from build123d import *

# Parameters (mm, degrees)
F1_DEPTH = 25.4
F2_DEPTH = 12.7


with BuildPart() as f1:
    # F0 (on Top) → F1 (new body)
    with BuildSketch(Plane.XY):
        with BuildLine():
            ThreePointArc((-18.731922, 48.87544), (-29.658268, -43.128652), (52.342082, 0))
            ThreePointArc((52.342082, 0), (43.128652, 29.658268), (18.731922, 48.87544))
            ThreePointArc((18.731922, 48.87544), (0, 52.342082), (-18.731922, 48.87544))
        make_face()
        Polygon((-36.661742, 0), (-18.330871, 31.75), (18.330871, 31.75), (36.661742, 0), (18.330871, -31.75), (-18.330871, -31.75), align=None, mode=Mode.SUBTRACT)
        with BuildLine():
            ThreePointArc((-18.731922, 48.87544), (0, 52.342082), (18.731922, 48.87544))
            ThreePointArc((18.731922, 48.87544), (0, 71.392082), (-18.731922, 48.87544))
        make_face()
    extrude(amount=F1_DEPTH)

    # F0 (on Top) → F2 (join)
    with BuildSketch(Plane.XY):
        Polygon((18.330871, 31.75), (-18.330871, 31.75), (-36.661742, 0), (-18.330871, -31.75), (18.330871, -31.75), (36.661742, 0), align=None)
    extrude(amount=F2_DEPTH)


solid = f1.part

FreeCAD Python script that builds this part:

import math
import FreeCAD as App
import Part
import Sketcher
Q = App.Units.Quantity


def add_polygon(sketch, points):
    """Adds a closed chain of lines whose ends are joined by coincident constraints."""
    first, n = sketch.GeometryCount, len(points)
    for a, b in zip(points, points[1:] + points[:1]):
        sketch.addGeometry(Part.LineSegment(App.Vector(*a, 0), App.Vector(*b, 0)), False)
    for i in range(n):
        sketch.addConstraint(Sketcher.Constraint("Coincident", first + i, 2, first + (i + 1) % n, 1))

doc = App.newDocument("Part")
params = doc.addObject("Spreadsheet::Sheet", "Params")
for row, (alias, value) in enumerate([
    ("sketch1_radius", "0.75 in"),
    ("pad1_length", "1 in"),
    ("pad2_length", "0.5 in"),
], start=1):
    params.set(f"A{row}", alias)
    params.set(f"B{row}", "=" + value)
    params.setAlias(f"B{row}", alias)

body = doc.addObject("PartDesign::Body", "Body")

sketch1 = body.newObject("Sketcher::SketchObject", "Sketch")
sketch1.AttachmentSupport = (doc.getObject("XY_Plane"), [""])
sketch1.MapMode = "FlatFace"
sketch1.addGeometry(Part.ArcOfCircle(Part.Circle(App.Vector(0, 0, 0), App.Vector(0, 0, 1), 52.342082), math.radians(110.969749), math.radians(360)), False)
sketch1.addGeometry(Part.ArcOfCircle(Part.Circle(App.Vector(-0.000003, -0.000002, 0), App.Vector(0, 0, 1), 52.342085), math.radians(0.000002), math.radians(69.030249)), False)
sketch1.addGeometry(Part.ArcOfCircle(Part.Circle(App.Vector(0, 52.342082, 0), App.Vector(0, 0, 1), 19.05), math.radians(-10.484874), math.radians(190.484874)), False)
add_polygon(sketch1, [(-18.330871, -31.75), (-36.661742, 0), (-18.330871, 31.75), (18.330871, 31.75), (36.661742, 0), (18.330871, -31.75)])
sketch1.addConstraint([
    Sketcher.Constraint("Tangent", 0, 2, 1, 1),
    Sketcher.Constraint("Coincident", 1, 2, 2, 1),
    Sketcher.Constraint("Coincident", 2, 2, 0, 1),
    Sketcher.Constraint("Horizontal", 5),
    Sketcher.Constraint("Horizontal", 8),
    Sketcher.Constraint("Coincident", 0, 3, -1, 1),
    Sketcher.Constraint("Symmetric", 3, 2, 6, 2, -1, 1),
    Sketcher.Constraint("Symmetric", 4, 2, 7, 2, -1, 1),
    Sketcher.Constraint("Symmetric", 1, 2, 2, 2, -2),
    Sketcher.Constraint("PointOnObject", 0, 2, -1),
    Sketcher.Constraint("PointOnObject", 3, 2, -1),
    Sketcher.Constraint("Parallel", 3, 6),
    Sketcher.Constraint("Vertical", 5, 2, 7, 2),
    Sketcher.Constraint("Radius", 2, Q("0.75 in")),
    Sketcher.Constraint("Angle", 3, Q("120 deg")),
    Sketcher.Constraint("DistanceY", -1, 1, 4, 2, Q("1.25 in")),
    Sketcher.Constraint("Radius", 0, 52.342082),
    Sketcher.Constraint("DistanceX", 5, 1, 5, 2, 36.661742),
    Sketcher.Constraint("DistanceY", -1, 1, 2, 3, 52.342082),
])
sketch1.setExpression("Constraints[19]", "Params.sketch1_radius")
pad1 = body.newObject("PartDesign::Pad", "Pad")
pad1.Profile = sketch1
pad1.setExpression("Length", "Params.pad1_length")

sketch2 = body.newObject("Sketcher::SketchObject", "Sketch001")
sketch2.AttachmentSupport = (doc.getObject("XY_Plane"), [""])
sketch2.MapMode = "FlatFace"
add_polygon(sketch2, [(18.330871, 31.75), (-18.330871, 31.75), (-36.661742, 0), (-18.330871, -31.75), (18.330871, -31.75), (36.661742, 0)])
sketch2.addConstraint([
    Sketcher.Constraint("Horizontal", 0),
    Sketcher.Constraint("Horizontal", 3),
    Sketcher.Constraint("Symmetric", 0, 2, 3, 2, -1, 1),
    Sketcher.Constraint("Symmetric", 1, 2, 4, 2, -1, 1),
    Sketcher.Constraint("PointOnObject", 1, 2, -1),
    Sketcher.Constraint("Parallel", 2, 5),
    Sketcher.Constraint("Vertical", 0, 2, 2, 2),
    Sketcher.Constraint("Angle", 1, Q("-120 deg")),
    Sketcher.Constraint("DistanceY", 2, 2, 0, 2, Q("2.5 in")),
    Sketcher.Constraint("DistanceX", 0, 2, 0, 1, 36.661742),
])
pad2 = body.newObject("PartDesign::Pad", "Pad001")
pad2.Profile = sketch2
pad2.setExpression("Length", "Params.pad2_length")

doc.recompute()
